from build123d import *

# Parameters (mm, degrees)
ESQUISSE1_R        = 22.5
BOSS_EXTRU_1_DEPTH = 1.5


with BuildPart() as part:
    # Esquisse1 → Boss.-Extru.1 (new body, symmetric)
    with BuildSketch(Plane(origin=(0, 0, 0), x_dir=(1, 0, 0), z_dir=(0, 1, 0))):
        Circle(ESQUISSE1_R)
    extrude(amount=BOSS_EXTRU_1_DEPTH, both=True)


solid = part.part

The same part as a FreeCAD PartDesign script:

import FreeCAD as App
import Part
import Sketcher
Q = App.Units.Quantity

doc = App.newDocument("Part")
params = doc.addObject("Spreadsheet::Sheet", "Params")
for row, (alias, value) in enumerate([
    ("sketch1_diameter", "45 mm"),
    ("pad1_length", "3 mm"),
], start=1):
    params.set(f"A{row}", alias)
    params.set(f"B{row}", "=" + value)
    params.setAlias(f"B{row}", alias)

body = doc.addObject("PartDesign::Body", "Body")

# Sketch on XZ plane
sketch1 = body.newObject("Sketcher::SketchObject", "Sketch")
sketch1.AttachmentSupport = (doc.getObject("XZ_Plane"), [""])
sketch1.MapMode = "FlatFace"
sketch1.addGeometry(Part.Circle(App.Vector(0, 0, 0), App.Vector(0, 0, 1), 22), False)
sketch1.addConstraint(Sketcher.Constraint("Coincident", 0, 3, -1, 1))
sketch1.addConstraint(Sketcher.Constraint("Diameter", 0, Q("45 mm")))
sketch1.setExpression("Constraints[1]", "Params.sketch1_diameter")
pad1 = body.newObject("PartDesign::Pad", "Pad")
pad1.Profile = sketch1
pad1.setExpression("Length", "Params.pad1_length")
pad1.Midplane = True

doc.recompute()
